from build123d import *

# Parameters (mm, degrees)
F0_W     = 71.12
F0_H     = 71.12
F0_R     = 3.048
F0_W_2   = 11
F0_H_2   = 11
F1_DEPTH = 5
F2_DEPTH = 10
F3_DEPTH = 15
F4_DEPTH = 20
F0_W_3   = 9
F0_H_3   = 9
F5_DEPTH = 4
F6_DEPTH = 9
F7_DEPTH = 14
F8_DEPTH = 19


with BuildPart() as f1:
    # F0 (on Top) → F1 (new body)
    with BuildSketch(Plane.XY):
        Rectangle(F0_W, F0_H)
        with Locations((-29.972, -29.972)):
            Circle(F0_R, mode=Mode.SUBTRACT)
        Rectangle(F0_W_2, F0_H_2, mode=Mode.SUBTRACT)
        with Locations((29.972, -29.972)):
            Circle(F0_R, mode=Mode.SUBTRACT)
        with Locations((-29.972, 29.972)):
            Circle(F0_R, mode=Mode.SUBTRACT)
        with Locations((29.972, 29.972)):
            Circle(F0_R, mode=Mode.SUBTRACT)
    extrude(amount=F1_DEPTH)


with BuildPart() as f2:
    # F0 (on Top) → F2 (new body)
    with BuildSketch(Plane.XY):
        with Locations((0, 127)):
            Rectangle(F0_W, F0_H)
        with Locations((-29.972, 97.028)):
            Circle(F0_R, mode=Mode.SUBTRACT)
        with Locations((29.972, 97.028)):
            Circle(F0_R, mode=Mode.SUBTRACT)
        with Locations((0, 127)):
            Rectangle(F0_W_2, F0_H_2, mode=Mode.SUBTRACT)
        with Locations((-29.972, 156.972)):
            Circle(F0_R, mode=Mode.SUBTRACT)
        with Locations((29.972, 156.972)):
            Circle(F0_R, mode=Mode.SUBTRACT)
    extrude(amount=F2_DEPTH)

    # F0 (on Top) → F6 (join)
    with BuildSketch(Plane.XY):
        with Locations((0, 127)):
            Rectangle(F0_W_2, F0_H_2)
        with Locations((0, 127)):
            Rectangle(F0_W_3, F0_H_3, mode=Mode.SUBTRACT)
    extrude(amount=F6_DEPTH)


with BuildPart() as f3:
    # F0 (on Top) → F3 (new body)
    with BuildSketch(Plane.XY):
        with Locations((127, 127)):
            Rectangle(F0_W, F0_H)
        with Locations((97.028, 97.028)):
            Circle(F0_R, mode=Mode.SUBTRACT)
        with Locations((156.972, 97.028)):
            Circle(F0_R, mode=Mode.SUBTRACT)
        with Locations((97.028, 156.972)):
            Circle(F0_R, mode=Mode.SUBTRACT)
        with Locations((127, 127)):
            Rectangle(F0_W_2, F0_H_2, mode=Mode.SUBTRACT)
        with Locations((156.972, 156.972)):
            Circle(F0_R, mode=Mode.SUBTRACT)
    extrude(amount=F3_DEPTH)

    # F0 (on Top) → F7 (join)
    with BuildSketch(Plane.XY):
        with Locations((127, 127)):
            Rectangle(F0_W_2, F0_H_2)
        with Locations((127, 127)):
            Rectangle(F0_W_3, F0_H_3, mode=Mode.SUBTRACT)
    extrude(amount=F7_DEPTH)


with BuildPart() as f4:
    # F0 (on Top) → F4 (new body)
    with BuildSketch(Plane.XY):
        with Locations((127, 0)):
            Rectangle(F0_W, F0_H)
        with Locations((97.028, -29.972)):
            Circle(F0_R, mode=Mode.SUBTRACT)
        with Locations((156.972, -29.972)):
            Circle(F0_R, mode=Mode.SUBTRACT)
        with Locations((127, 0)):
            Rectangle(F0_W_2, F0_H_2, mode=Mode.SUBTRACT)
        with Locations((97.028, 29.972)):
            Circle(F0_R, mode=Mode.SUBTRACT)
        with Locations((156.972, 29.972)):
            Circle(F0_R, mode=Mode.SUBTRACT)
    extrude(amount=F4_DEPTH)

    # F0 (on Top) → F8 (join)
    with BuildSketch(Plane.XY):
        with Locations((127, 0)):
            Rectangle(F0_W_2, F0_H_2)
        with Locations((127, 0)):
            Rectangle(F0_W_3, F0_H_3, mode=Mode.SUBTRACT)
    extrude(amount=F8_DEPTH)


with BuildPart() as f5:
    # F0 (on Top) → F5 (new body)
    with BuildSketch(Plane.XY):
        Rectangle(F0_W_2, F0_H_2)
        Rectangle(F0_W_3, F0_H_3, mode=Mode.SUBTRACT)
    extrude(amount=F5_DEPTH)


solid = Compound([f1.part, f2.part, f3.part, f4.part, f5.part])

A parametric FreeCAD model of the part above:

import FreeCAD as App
import Part
import Sketcher
from FreeCAD import Vector
Q = App.Units.Quantity


def add_polygon(sketch, points):
    """Adds a closed chain of lines whose ends are joined by coincident constraints."""
    first, n = sketch.GeometryCount, len(points)
    for a, b in zip(points, points[1:] + points[:1]):
        sketch.addGeometry(Part.LineSegment(App.Vector(*a, 0), App.Vector(*b, 0)), False)
    for i in range(n):
        sketch.addConstraint(Sketcher.Constraint("Coincident", first + i, 2, first + (i + 1) % n, 1))

doc = App.newDocument("Part")
body = doc.addObject("PartDesign::Body", "Body")

sketch1 = body.newObject("Sketcher::SketchObject", "Sketch")
sketch1.AttachmentSupport = (doc.getObject("XY_Plane"), [""])
sketch1.MapMode = "FlatFace"
add_polygon(sketch1, [(-35.56, 35.56), (-35.56, -35.56), (35.56, -35.56), (35.56, 35.56)])
sketch1.addGeometry(Part.Circle(Vector(-29.972, -29.972, 0), Vector(0, 0, 1), 3.048), False)
sketch1.addGeometry(Part.Circle(Vector(29.972, -29.972, 0), Vector(0, 0, 1), 3.048), False)
sketch1.addGeometry(Part.Circle(Vector(-29.972, 29.972, 0), Vector(0, 0, 1), 3.048), False)
add_polygon(sketch1, [(5.5, -5.5), (-5.5, -5.5), (-5.5, 5.5), (5.5, 5.5)])
sketch1.addGeometry(Part.Circle(Vector(29.972, 29.972, 0), Vector(0, 0, 1), 3.048), False)
sketch1.addConstraint(Sketcher.Constraint("Vertical", 0))
sketch1.addConstraint(Sketcher.Constraint("Horizontal", 1))
sketch1.addConstraint(Sketcher.Constraint("Vertical", 2))
sketch1.addConstraint(Sketcher.Constraint("Horizontal", 3))
sketch1.addConstraint(Sketcher.Constraint("Horizontal", 7))
sketch1.addConstraint(Sketcher.Constraint("Vertical", 8))
sketch1.addConstraint(Sketcher.Constraint("Horizontal", 9))
sketch1.addConstraint(Sketcher.Constraint("Vertical", 10))
sketch1.addConstraint(Sketcher.Constraint("Equal", 4, 5))
sketch1.addConstraint(Sketcher.Constraint("Equal", 5, 6))
sketch1.addConstraint(Sketcher.Constraint("Equal", 6, 11))
sketch1.addConstraint(Sketcher.Constraint("Symmetric", 5, 3, 6, 3, -1, 1))
sketch1.addConstraint(Sketcher.Constraint("Symmetric", 4, 3, 11, 3, -1, 1))
sketch1.addConstraint(Sketcher.Constraint("Symmetric", 0, 2, 2, 2, -1, 1))
sketch1.addConstraint(Sketcher.Constraint("Symmetric", 7, 2, 9, 2, -1, 1))
sketch1.addConstraint(Sketcher.Constraint("Symmetric", 4, 3, 5, 3, -2))
sketch1.addConstraint(Sketcher.Constraint("Equal", 3, 0))
sketch1.addConstraint(Sketcher.Constraint("Equal", 9, 8))
sketch1.addConstraint(Sketcher.Constraint("DistanceX", 7, 2, 7, 1, Q("11 mm")))
sketch1.addConstraint(Sketcher.Constraint("Diameter", 4, Q("6.096 mm")))
sketch1.addConstraint(Sketcher.Constraint("DistanceX", 1, 1, 1, 2, Q("71.12 mm")))
sketch1.addConstraint(Sketcher.Constraint("DistanceX", 4, 3, -1, 1, Q("29.972 mm")))
sketch1.addConstraint(Sketcher.Constraint("DistanceY", 4, 3, -1, 1, Q("29.972 mm")))
pad1 = body.newObject("PartDesign::Pad", "Pad")
pad1.Profile = sketch1
pad1.Length = 5
body2 = doc.addObject("PartDesign::Body", "Body001")

sketch2 = body2.newObject("Sketcher::SketchObject", "Sketch001")
sketch2.AttachmentSupport = (doc.getObject("XY_Plane001"), [""])
sketch2.MapMode = "FlatFace"
add_polygon(sketch2, [(-35.56, 162.56), (-35.56, 91.44), (35.56, 91.44), (35.56, 162.56)])
sketch2.addGeometry(Part.Circle(Vector(-29.972, 97.028, 0), Vector(0, 0, 1), 3.048), False)
sketch2.addGeometry(Part.Circle(Vector(29.972, 97.028, 0), Vector(0, 0, 1), 3.048), False)
add_polygon(sketch2, [(5.5, 121.5), (-5.5, 121.5), (-5.5, 132.5), (5.5, 132.5)])
sketch2.addGeometry(Part.Circle(Vector(-29.972, 156.972, 0), Vector(0, 0, 1), 3.048), False)
sketch2.addGeometry(Part.Circle(Vector(29.972, 156.972, 0), Vector(0, 0, 1), 3.048), False)
sketch2.addConstraint(Sketcher.Constraint("Vertical", 0))
sketch2.addConstraint(Sketcher.Constraint("Horizontal", 1))
sketch2.addConstraint(Sketcher.Constraint("Vertical", 2))
sketch2.addConstraint(Sketcher.Constraint("Horizontal", 3))
sketch2.addConstraint(Sketcher.Constraint("Horizontal", 6))
sketch2.addConstraint(Sketcher.Constraint("Vertical", 7))
sketch2.addConstraint(Sketcher.Constraint("Horizontal", 8))
sketch2.addConstraint(Sketcher.Constraint("Vertical", 9))
sketch2.addConstraint(Sketcher.Constraint("Equal", 4, 5))
sketch2.addConstraint(Sketcher.Constraint("Equal", 5, 10))
sketch2.addConstraint(Sketcher.Constraint("Equal", 10, 11))
sketch2.addConstraint(Sketcher.Constraint("Symmetric", 4, 3, 5, 3, -2))
sketch2.addConstraint(Sketcher.Constraint("Symmetric", 10, 3, 11, 3, -2))
sketch2.addConstraint(Sketcher.Constraint("Vertical", 4, 3, 10, 3))
sketch2.addConstraint(Sketcher.Constraint("Equal", 3, 0))
sketch2.addConstraint(Sketcher.Constraint("Equal", 8, 7))
sketch2.addConstraint(Sketcher.Constraint("DistanceX", 6, 2, 6, 1, Q("11 mm")))
sketch2.addConstraint(Sketcher.Constraint("Diameter", 4, Q("6.096 mm")))
sketch2.addConstraint(Sketcher.Constraint("DistanceX", 1, 1, 1, 2, Q("71.12 mm")))
sketch2.addConstraint(Sketcher.Constraint("DistanceX", 6, 2, -1, 1, Q("5.5 mm")))
sketch2.addConstraint(Sketcher.Constraint("DistanceY", -1, 1, 6, 2, Q("121.5 mm")))
sketch2.addConstraint(Sketcher.Constraint("DistanceX", 0, 2, -1, 1, Q("35.56 mm")))
sketch2.addConstraint(Sketcher.Constraint("DistanceY", -1, 1, 0, 2, Q("91.44 mm")))
sketch2.addConstraint(Sketcher.Constraint("DistanceX", 4, 3, -1, 1, Q("29.972 mm")))
sketch2.addConstraint(Sketcher.Constraint("DistanceY", -1, 1, 4, 3, Q("97.028 mm")))
sketch2.addConstraint(Sketcher.Constraint("DistanceY", -1, 1, 10, 3, Q("156.972 mm")))
pad2 = body2.newObject("PartDesign::Pad", "Pad001")
pad2.Profile = sketch2
pad2.Length = 10

sketch3 = body2.newObject("Sketcher::SketchObject", "Sketch002")
sketch3.AttachmentSupport = (doc.getObject("XY_Plane001"), [""])
sketch3.MapMode = "FlatFace"
add_polygon(sketch3, [(-5.5, 132.5), (-5.5, 121.5), (5.5, 121.5), (5.5, 132.5)])
add_polygon(sketch3, [(4.5, 122.5), (-4.5, 122.5), (-4.5, 131.5), (4.5, 131.5)])
sketch3.addConstraint(Sketcher.Constraint("Vertical", 0))
sketch3.addConstraint(Sketcher.Constraint("Horizontal", 1))
sketch3.addConstraint(Sketcher.Constraint("Vertical", 2))
sketch3.addConstraint(Sketcher.Constraint("Horizontal", 3))
sketch3.addConstraint(Sketcher.Constraint("Horizontal", 4))
sketch3.addConstraint(Sketcher.Constraint("Vertical", 5))
sketch3.addConstraint(Sketcher.Constraint("Horizontal", 6))
sketch3.addConstraint(Sketcher.Constraint("Vertical", 7))
sketch3.addConstraint(Sketcher.Constraint("Equal", 3, 0))
sketch3.addConstraint(Sketcher.Constraint("Equal", 6, 5))
sketch3.addConstraint(Sketcher.Constraint("DistanceX", 1, 1, 1, 2, Q("11 mm")))
sketch3.addConstraint(Sketcher.Constraint("DistanceX", 4, 2, 4, 1, Q("9 mm")))
sketch3.addConstraint(Sketcher.Constraint("DistanceX", 0, 2, 4, 2, Q("1 mm")))
sketch3.addConstraint(Sketcher.Constraint("DistanceY", 0, 2, 4, 2, Q("1 mm")))
sketch3.addConstraint(Sketcher.Constraint("DistanceX", 0, 2, -1, 1, Q("5.5 mm")))
sketch3.addConstraint(Sketcher.Constraint("DistanceY", -1, 1, 0, 2, Q("121.5 mm")))
pad3 = body2.newObject("PartDesign::Pad", "Pad002")
pad3.Profile = sketch3
pad3.Length = 9
body3 = doc.addObject("PartDesign::Body", "Body002")

sketch4 = body3.newObject("Sketcher::SketchObject", "Sketch003")
sketch4.AttachmentSupport = (doc.getObject("XY_Plane002"), [""])
sketch4.MapMode = "FlatFace"
add_polygon(sketch4, [(91.44, 162.56), (91.44, 91.44), (162.56, 91.44), (162.56, 162.56)])
sketch4.addGeometry(Part.Circle(Vector(97.028, 97.028, 0), Vector(0, 0, 1), 3.048), False)
add_polygon(sketch4, [(132.5, 121.5), (121.5, 121.5), (121.5, 132.5), (132.5, 132.5)])
sketch4.addGeometry(Part.Circle(Vector(156.972, 97.028, 0), Vector(0, 0, 1), 3.048), False)
sketch4.addGeometry(Part.Circle(Vector(97.028, 156.972, 0), Vector(0, 0, 1), 3.048), False)
sketch4.addGeometry(Part.Circle(Vector(156.972, 156.972, 0), Vector(0, 0, 1), 3.048), False)
sketch4.addConstraint(Sketcher.Constraint("Vertical", 0))
sketch4.addConstraint(Sketcher.Constraint("Horizontal", 1))
sketch4.addConstraint(Sketcher.Constraint("Vertical", 2))
sketch4.addConstraint(Sketcher.Constraint("Horizontal", 3))
sketch4.addConstraint(Sketcher.Constraint("Horizontal", 5))
sketch4.addConstraint(Sketcher.Constraint("Vertical", 6))
sketch4.addConstraint(Sketcher.Constraint("Horizontal", 7))
sketch4.addConstraint(Sketcher.Constraint("Vertical", 8))
sketch4.addConstraint(Sketcher.Constraint("Equal", 4, 9))
sketch4.addConstraint(Sketcher.Constraint("Equal", 9, 10))
sketch4.addConstraint(Sketcher.Constraint("Equal", 10, 11))
sketch4.addConstraint(Sketcher.Constraint("Horizontal", 4, 3, 9, 3))
sketch4.addConstraint(Sketcher.Constraint("Horizontal", 10, 3, 11, 3))
sketch4.addConstraint(Sketcher.Constraint("Vertical", 4, 3, 10, 3))
sketch4.addConstraint(Sketcher.Constraint("Vertical", 9, 3, 11, 3))
sketch4.addConstraint(Sketcher.Constraint("Equal", 3, 0))
sketch4.addConstraint(Sketcher.Constraint("Equal", 7, 6))
sketch4.addConstraint(Sketcher.Constraint("DistanceX", 5, 2, 5, 1, Q("11 mm")))
sketch4.addConstraint(Sketcher.Constraint("Diameter", 4, Q("6.096 mm")))
sketch4.addConstraint(Sketcher.Constraint("DistanceX", 1, 1, 1, 2, Q("71.12 mm")))
sketch4.addConstraint(Sketcher.Constraint("DistanceX", -1, 1, 5, 2, Q("121.5 mm")))
sketch4.addConstraint(Sketcher.Constraint("DistanceY", -1, 1, 5, 2, Q("121.5 mm")))
sketch4.addConstraint(Sketcher.Constraint("DistanceX", -1, 1, 0, 2, Q("91.44 mm")))
sketch4.addConstraint(Sketcher.Constraint("DistanceY", -1, 1, 0, 2, Q("91.44 mm")))
sketch4.addConstraint(Sketcher.Constraint("DistanceX", -1, 1, 4, 3, Q("97.028 mm")))
sketch4.addConstraint(Sketcher.Constraint("DistanceY", -1, 1, 4, 3, Q("97.028 mm")))
sketch4.addConstraint(Sketcher.Constraint("DistanceX", -1, 1, 9, 3, Q("156.972 mm")))
sketch4.addConstraint(Sketcher.Constraint("DistanceY", -1, 1, 10, 3, Q("156.972 mm")))
pad4 = body3.newObject("PartDesign::Pad", "Pad003")
pad4.Profile = sketch4
pad4.Length = 15

sketch5 = body3.newObject("Sketcher::SketchObject", "Sketch004")
sketch5.AttachmentSupport = (doc.getObject("XY_Plane002"), [""])
sketch5.MapMode = "FlatFace"
add_polygon(sketch5, [(121.5, 132.5), (121.5, 121.5), (132.5, 121.5), (132.5, 132.5)])
add_polygon(sketch5, [(131.5, 122.5), (122.5, 122.5), (122.5, 131.5), (131.5, 131.5)])
sketch5.addConstraint(Sketcher.Constraint("Vertical", 0))
sketch5.addConstraint(Sketcher.Constraint("Horizontal", 1))
sketch5.addConstraint(Sketcher.Constraint("Vertical", 2))
sketch5.addConstraint(Sketcher.Constraint("Horizontal", 3))
sketch5.addConstraint(Sketcher.Constraint("Horizontal", 4))
sketch5.addConstraint(Sketcher.Constraint("Vertical", 5))
sketch5.addConstraint(Sketcher.Constraint("Horizontal", 6))
sketch5.addConstraint(Sketcher.Constraint("Vertical", 7))
sketch5.addConstraint(Sketcher.Constraint("Equal", 3, 0))
sketch5.addConstraint(Sketcher.Constraint("Equal", 6, 5))
sketch5.addConstraint(Sketcher.Constraint("DistanceX", 1, 1, 1, 2, Q("11 mm")))
sketch5.addConstraint(Sketcher.Constraint("DistanceX", 4, 2, 4, 1, Q("9 mm")))
sketch5.addConstraint(Sketcher.Constraint("DistanceX", 0, 2, 4, 2, Q("1 mm")))
sketch5.addConstraint(Sketcher.Constraint("DistanceY", 0, 2, 4, 2, Q("1 mm")))
sketch5.addConstraint(Sketcher.Constraint("DistanceX", -1, 1, 0, 2, Q("121.5 mm")))
sketch5.addConstraint(Sketcher.Constraint("DistanceY", -1, 1, 0, 2, Q("121.5 mm")))
pad5 = body3.newObject("PartDesign::Pad", "Pad004")
pad5.Profile = sketch5
pad5.Length = 14
body4 = doc.addObject("PartDesign::Body", "Body003")

sketch6 = body4.newObject("Sketcher::SketchObject", "Sketch005")
sketch6.AttachmentSupport = (doc.getObject("XY_Plane003"), [""])
sketch6.MapMode = "FlatFace"
add_polygon(sketch6, [(91.44, 35.56), (91.44, -35.56), (162.56, -35.56), (162.56, 35.56)])
sketch6.addGeometry(Part.Circle(Vector(97.028, -29.972, 0), Vector(0, 0, 1), 3.048), False)
sketch6.addGeometry(Part.Circle(Vector(156.972, -29.972, 0), Vector(0, 0, 1), 3.048), False)
add_polygon(sketch6, [(132.5, -5.5), (121.5, -5.5), (121.5, 5.5), (132.5, 5.5)])
sketch6.addGeometry(Part.Circle(Vector(97.028, 29.972, 0), Vector(0, 0, 1), 3.048), False)
sketch6.addGeometry(Part.Circle(Vector(156.972, 29.972, 0), Vector(0, 0, 1), 3.048), False)
sketch6.addConstraint(Sketcher.Constraint("Vertical", 0))
sketch6.addConstraint(Sketcher.Constraint("Horizontal", 1))
sketch6.addConstraint(Sketcher.Constraint("Vertical", 2))
sketch6.addConstraint(Sketcher.Constraint("Horizontal", 3))
sketch6.addConstraint(Sketcher.Constraint("Horizontal", 6))
sketch6.addConstraint(Sketcher.Constraint("Vertical", 7))
sketch6.addConstraint(Sketcher.Constraint("Horizontal", 8))
sketch6.addConstraint(Sketcher.Constraint("Vertical", 9))
sketch6.addConstraint(Sketcher.Constraint("Equal", 4, 5))
sketch6.addConstraint(Sketcher.Constraint("Equal", 5, 10))
sketch6.addConstraint(Sketcher.Constraint("Equal", 10, 11))
sketch6.addConstraint(Sketcher.Constraint("Symmetric", 4, 3, 10, 3, -1))
sketch6.addConstraint(Sketcher.Constraint("Symmetric", 5, 3, 11, 3, -1))
sketch6.addConstraint(Sketcher.Constraint("Horizontal", 4, 3, 5, 3))
sketch6.addConstraint(Sketcher.Constraint("Equal", 3, 0))
sketch6.addConstraint(Sketcher.Constraint("Equal", 8, 7))
sketch6.addConstraint(Sketcher.Constraint("DistanceX", 6, 2, 6, 1, Q("11 mm")))
sketch6.addConstraint(Sketcher.Constraint("Diameter", 4, Q("6.096 mm")))
sketch6.addConstraint(Sketcher.Constraint("DistanceX", 1, 1, 1, 2, Q("71.12 mm")))
sketch6.addConstraint(Sketcher.Constraint("DistanceX", -1, 1, 6, 2, Q("121.5 mm")))
sketch6.addConstraint(Sketcher.Constraint("DistanceY", 6, 2, -1, 1, Q("5.5 mm")))
sketch6.addConstraint(Sketcher.Constraint("DistanceX", -1, 1, 0, 2, Q("91.44 mm")))
sketch6.addConstraint(Sketcher.Constraint("DistanceY", 0, 2, -1, 1, Q("35.56 mm")))
sketch6.addConstraint(Sketcher.Constraint("DistanceX", -1, 1, 4, 3, Q("97.028 mm")))
sketch6.addConstraint(Sketcher.Constraint("DistanceY", 4, 3, -1, 1, Q("29.972 mm")))
sketch6.addConstraint(Sketcher.Constraint("DistanceX", -1, 1, 5, 3, Q("156.972 mm")))
pad6 = body4.newObject("PartDesign::Pad", "Pad005")
pad6.Profile = sketch6
pad6.Length = 20

sketch7 = body4.newObject("Sketcher::SketchObject", "Sketch006")
sketch7.AttachmentSupport = (doc.getObject("XY_Plane003"), [""])
sketch7.MapMode = "FlatFace"
add_polygon(sketch7, [(121.5, 5.5), (121.5, -5.5), (132.5, -5.5), (132.5, 5.5)])
add_polygon(sketch7, [(131.5, -4.5), (122.5, -4.5), (122.5, 4.5), (131.5, 4.5)])
sketch7.addConstraint(Sketcher.Constraint("Vertical", 0))
sketch7.addConstraint(Sketcher.Constraint("Horizontal", 1))
sketch7.addConstraint(Sketcher.Constraint("Vertical", 2))
sketch7.addConstraint(Sketcher.Constraint("Horizontal", 3))
sketch7.addConstraint(Sketcher.Constraint("Horizontal", 4))
sketch7.addConstraint(Sketcher.Constraint("Vertical", 5))
sketch7.addConstraint(Sketcher.Constraint("Horizontal", 6))
sketch7.addConstraint(Sketcher.Constraint("Vertical", 7))
sketch7.addConstraint(Sketcher.Constraint("Equal", 3, 0))
sketch7.addConstraint(Sketcher.Constraint("Equal", 6, 5))
sketch7.addConstraint(Sketcher.Constraint("DistanceX", 1, 1, 1, 2, Q("11 mm")))
sketch7.addConstraint(Sketcher.Constraint("DistanceX", 4, 2, 4, 1, Q("9 mm")))
sketch7.addConstraint(Sketcher.Constraint("DistanceX", 0, 2, 4, 2, Q("1 mm")))
sketch7.addConstraint(Sketcher.Constraint("DistanceY", 0, 2, 4, 2, Q("1 mm")))
sketch7.addConstraint(Sketcher.Constraint("DistanceX", -1, 1, 0, 2, Q("121.5 mm")))
sketch7.addConstraint(Sketcher.Constraint("DistanceY", 0, 2, -1, 1, Q("5.5 mm")))
pad7 = body4.newObject("PartDesign::Pad", "Pad006")
pad7.Profile = sketch7
pad7.Length = 19
body5 = doc.addObject("PartDesign::Body", "Body004")

sketch8 = body5.newObject("Sketcher::SketchObject", "Sketch007")
sketch8.AttachmentSupport = (doc.getObject("XY_Plane004"), [""])
sketch8.MapMode = "FlatFace"
add_polygon(sketch8, [(-5.5, 5.5), (-5.5, -5.5), (5.5, -5.5), (5.5, 5.5)])
add_polygon(sketch8, [(4.5, -4.5), (-4.5, -4.5), (-4.5, 4.5), (4.5, 4.5)])
sketch8.addConstraint(Sketcher.Constraint("Vertical", 0))
sketch8.addConstraint(Sketcher.Constraint("Horizontal", 1))
sketch8.addConstraint(Sketcher.Constraint("Vertical", 2))
sketch8.addConstraint(Sketcher.Constraint("Horizontal", 3))
sketch8.addConstraint(Sketcher.Constraint("Horizontal", 4))
sketch8.addConstraint(Sketcher.Constraint("Vertical", 5))
sketch8.addConstraint(Sketcher.Constraint("Horizontal", 6))
sketch8.addConstraint(Sketcher.Constraint("Vertical", 7))
sketch8.addConstraint(Sketcher.Constraint("Symmetric", 0, 2, 2, 2, -1, 1))
sketch8.addConstraint(Sketcher.Constraint("Symmetric", 4, 2, 6, 2, -1, 1))
sketch8.addConstraint(Sketcher.Constraint("Equal", 3, 0))
sketch8.addConstraint(Sketcher.Constraint("Equal", 6, 5))
sketch8.addConstraint(Sketcher.Constraint("DistanceX", 1, 1, 1, 2, Q("11 mm")))
sketch8.addConstraint(Sketcher.Constraint("DistanceX", 4, 2, 4, 1, Q("9 mm")))
pad8 = body5.newObject("PartDesign::Pad", "Pad007")
pad8.Profile = sketch8
pad8.Length = 4

doc.recompute()
